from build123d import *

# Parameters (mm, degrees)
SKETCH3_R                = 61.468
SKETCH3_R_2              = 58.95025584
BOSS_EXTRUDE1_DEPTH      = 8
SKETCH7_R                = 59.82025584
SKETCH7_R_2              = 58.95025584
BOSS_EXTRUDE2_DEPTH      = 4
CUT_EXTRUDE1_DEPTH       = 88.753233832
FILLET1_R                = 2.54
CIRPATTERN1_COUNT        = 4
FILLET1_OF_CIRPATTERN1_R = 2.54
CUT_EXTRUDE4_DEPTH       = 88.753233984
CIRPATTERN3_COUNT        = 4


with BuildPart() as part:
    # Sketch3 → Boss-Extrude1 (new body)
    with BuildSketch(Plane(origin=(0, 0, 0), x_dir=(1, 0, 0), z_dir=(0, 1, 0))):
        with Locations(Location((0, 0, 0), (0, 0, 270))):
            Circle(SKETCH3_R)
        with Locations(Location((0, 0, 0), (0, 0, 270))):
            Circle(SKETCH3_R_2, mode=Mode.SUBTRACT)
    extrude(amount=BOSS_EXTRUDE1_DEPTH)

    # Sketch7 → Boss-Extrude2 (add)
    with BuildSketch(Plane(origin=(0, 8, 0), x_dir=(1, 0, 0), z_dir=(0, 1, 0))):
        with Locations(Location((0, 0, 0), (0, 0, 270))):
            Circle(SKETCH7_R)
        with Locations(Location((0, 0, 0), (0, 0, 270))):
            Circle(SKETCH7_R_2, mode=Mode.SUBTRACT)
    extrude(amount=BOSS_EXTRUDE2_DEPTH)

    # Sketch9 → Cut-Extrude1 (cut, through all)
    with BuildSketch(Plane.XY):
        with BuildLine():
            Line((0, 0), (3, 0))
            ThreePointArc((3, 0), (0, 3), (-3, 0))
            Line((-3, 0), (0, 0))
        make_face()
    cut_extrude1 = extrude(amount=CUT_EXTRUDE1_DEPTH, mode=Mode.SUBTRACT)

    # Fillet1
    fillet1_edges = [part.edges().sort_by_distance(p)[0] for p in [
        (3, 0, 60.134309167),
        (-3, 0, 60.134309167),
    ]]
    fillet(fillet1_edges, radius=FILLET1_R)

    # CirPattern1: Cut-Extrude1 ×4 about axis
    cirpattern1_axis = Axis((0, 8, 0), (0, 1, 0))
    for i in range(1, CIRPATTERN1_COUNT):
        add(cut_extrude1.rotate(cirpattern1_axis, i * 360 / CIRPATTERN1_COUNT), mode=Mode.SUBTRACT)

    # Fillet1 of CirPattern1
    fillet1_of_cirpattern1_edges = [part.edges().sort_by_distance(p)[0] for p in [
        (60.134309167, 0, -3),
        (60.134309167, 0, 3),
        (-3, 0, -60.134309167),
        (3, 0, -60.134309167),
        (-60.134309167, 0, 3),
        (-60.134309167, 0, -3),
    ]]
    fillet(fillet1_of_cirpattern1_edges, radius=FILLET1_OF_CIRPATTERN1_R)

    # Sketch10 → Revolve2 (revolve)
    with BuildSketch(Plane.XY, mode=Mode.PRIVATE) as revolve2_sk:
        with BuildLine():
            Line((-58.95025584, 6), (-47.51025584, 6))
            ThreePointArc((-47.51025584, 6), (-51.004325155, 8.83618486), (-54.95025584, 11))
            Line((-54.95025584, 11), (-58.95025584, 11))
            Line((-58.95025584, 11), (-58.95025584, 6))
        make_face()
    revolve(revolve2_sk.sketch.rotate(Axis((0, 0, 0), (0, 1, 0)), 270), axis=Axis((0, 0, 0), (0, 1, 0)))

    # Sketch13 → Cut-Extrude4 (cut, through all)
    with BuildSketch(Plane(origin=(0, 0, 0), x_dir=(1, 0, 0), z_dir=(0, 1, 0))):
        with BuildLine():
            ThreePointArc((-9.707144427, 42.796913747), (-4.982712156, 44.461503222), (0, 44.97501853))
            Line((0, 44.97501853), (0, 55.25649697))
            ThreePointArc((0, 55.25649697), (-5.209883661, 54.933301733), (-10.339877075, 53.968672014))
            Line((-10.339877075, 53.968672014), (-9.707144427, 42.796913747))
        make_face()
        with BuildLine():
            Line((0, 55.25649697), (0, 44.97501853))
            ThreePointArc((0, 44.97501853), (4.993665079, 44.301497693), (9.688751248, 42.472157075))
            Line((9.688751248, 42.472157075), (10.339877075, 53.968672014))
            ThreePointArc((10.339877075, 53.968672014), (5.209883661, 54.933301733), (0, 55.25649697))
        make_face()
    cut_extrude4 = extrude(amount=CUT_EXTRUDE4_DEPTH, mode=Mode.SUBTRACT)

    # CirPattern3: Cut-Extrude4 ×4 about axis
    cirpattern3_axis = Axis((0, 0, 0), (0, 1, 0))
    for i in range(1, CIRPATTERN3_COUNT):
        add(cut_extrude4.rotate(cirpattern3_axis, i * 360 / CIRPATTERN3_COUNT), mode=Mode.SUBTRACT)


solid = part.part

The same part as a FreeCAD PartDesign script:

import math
import FreeCAD as App
import Part
import Sketcher

V = App.Vector
Q = App.Units.Quantity


def edges_at(feature, points):
    """Names of the edges that pass closest to the given points."""
    edges = feature.Shape.Edges
    near = lambda p: min(range(len(edges)), key=lambda i: edges[i].distToShape(Part.Vertex(*p))[0])
    return sorted({f"Edge{near(p) + 1}" for p in points})

doc = App.newDocument("Part")
body = doc.addObject("PartDesign::Body", "Body")

# Sketch on XZ plane
sketch1 = body.newObject("Sketcher::SketchObject", "Sketch")
sketch1.AttachmentSupport = (doc.getObject("XZ_Plane"), [""])
sketch1.MapMode = "FlatFace"
sketch1.addGeometry(Part.Circle(V(0, 0, 0), V(0, 0, 1), 61), False)
sketch1.addGeometry(Part.Circle(V(0, 0, 0), V(0, 0, 1), 59), False)
sketch1.addConstraint(Sketcher.Constraint("Coincident", 0, 3, -1, 1))
sketch1.addConstraint(Sketcher.Constraint("Coincident", 1, 3, -1, 1))
sketch1.addConstraint(Sketcher.Constraint("Diameter", 0, Q("122.936 mm")))
sketch1.addConstraint(Sketcher.Constraint("Diameter", 1, Q("117.900512 mm")))
pad1 = body.newObject("PartDesign::Pad", "Pad")
pad1.Profile = sketch1
pad1.Length = 8
pad1.Reversed = True

# Sketch on XZ plane
sketch2 = body.newObject("Sketcher::SketchObject", "Sketch001")
sketch2.AttachmentSupport = (doc.getObject("XZ_Plane"), [""])
sketch2.MapMode = "FlatFace"
sketch2.AttachmentOffset = App.Placement(V(0, 0, -8), App.Rotation())
sketch2.addGeometry(Part.Circle(V(0, 0, 0), V(0, 0, 1), 60), False)
sketch2.addGeometry(Part.Circle(V(0, 0, 0), V(0, 0, 1), 59), False)
sketch2.addConstraint(Sketcher.Constraint("Coincident", 0, 3, -1, 1))
sketch2.addConstraint(Sketcher.Constraint("Coincident", 1, 3, -1, 1))
sketch2.addConstraint(Sketcher.Constraint("Diameter", 0, Q("119.640512 mm")))
sketch2.addConstraint(Sketcher.Constraint("Diameter", 1, Q("117.900512 mm")))
pad2 = body.newObject("PartDesign::Pad", "Pad001")
pad2.Profile = sketch2
pad2.Length = 4
pad2.Reversed = True

# Sketch on XY plane
sketch3 = body.newObject("Sketcher::SketchObject", "Sketch002")
sketch3.AttachmentSupport = (doc.getObject("XY_Plane"), [""])
sketch3.MapMode = "FlatFace"
sketch3.addGeometry(Part.ArcOfCircle(Part.Circle(V(0, 0, 0), V(0, 0, 1), 3), math.radians(0), math.radians(180)), False)
sketch3.addGeometry(Part.LineSegment(V(-3, 0, 0), V(3, 0, 0)), False)
sketch3.addConstraint(Sketcher.Constraint("Coincident", 0, 1, 1, 2))
sketch3.addConstraint(Sketcher.Constraint("Coincident", 1, 1, 0, 2))
sketch3.addConstraint(Sketcher.Constraint("Horizontal", 1))
sketch3.addConstraint(Sketcher.Constraint("Coincident", 0, 3, -1, 1))
sketch3.addConstraint(Sketcher.Constraint("PointOnObject", 0, 1, -1))
sketch3.addConstraint(Sketcher.Constraint("Radius", 0, Q("3 mm")))
pocket1 = body.newObject("PartDesign::Pocket", "Pocket")
pocket1.Profile = sketch3
pocket1.Type = "ThroughAll"
pocket1.Reversed = True
doc.recompute()

fillet = body.newObject("PartDesign::Fillet", "Fillet")
fillet.Base = (pocket1, edges_at(pocket1, [(3, 0, 60.134), (-3, 0, 60.134)]))
fillet.Radius = 2.54
doc.recompute()

polarpattern = body.newObject("PartDesign::PolarPattern", "PolarPattern")
polarpattern.Originals = [pocket1]
polarpattern.Axis = (doc.getObject("Y_Axis"), [""])
polarpattern.Angle = 360
polarpattern.Occurrences = 4
body.Tip = polarpattern
doc.recompute()

fillet2 = body.newObject("PartDesign::Fillet", "Fillet001")
fillet2.Base = (polarpattern, edges_at(polarpattern, [
    (60.134, 0, -3),
    (60.134, 0, 3),
    (-3, 0, -60.134),
    (3, 0, -60.134),
    (-60.134, 0, 3),
    (-60.134, 0, -3),
]))
fillet2.Radius = 2.54

# Sketch on XY plane
sketch4 = body.newObject("Sketcher::SketchObject", "Sketch003")
sketch4.AttachmentSupport = (doc.getObject("XY_Plane"), [""])
sketch4.MapMode = "FlatFace"
sketch4.addGeometry(Part.LineSegment(V(-59, 6, 0), V(-47.5, 6, 0)), False)
sketch4.addGeometry(Part.ArcOfCircle(Part.Circle(V(-64.9, -11.9, 0), V(0, 0, 1), 25), math.radians(46), math.radians(66)), False)
sketch4.addGeometry(Part.LineSegment(V(-55, 11, 0), V(-59, 11, 0)), False)
sketch4.addGeometry(Part.LineSegment(V(-59, 11, 0), V(-59, 6, 0)), False)
sketch4.addConstraint(Sketcher.Constraint("Coincident", 0, 2, 1, 1))
sketch4.addConstraint(Sketcher.Constraint("Coincident", 1, 2, 2, 1))
sketch4.addConstraint(Sketcher.Constraint("Coincident", 2, 2, 3, 1))
sketch4.addConstraint(Sketcher.Constraint("Coincident", 3, 2, 0, 1))
sketch4.addConstraint(Sketcher.Constraint("Horizontal", 0))
sketch4.addConstraint(Sketcher.Constraint("Horizontal", 2))
sketch4.addConstraint(Sketcher.Constraint("Vertical", 3))
sketch4.addConstraint(Sketcher.Constraint("Radius", 1, Q("25 mm")))
sketch4.addConstraint(Sketcher.Constraint("DistanceX", 2, 2, 2, 1, Q("4 mm")))
sketch4.addConstraint(Sketcher.Constraint("DistanceY", 3, 2, 3, 1, Q("5 mm")))
sketch4.addConstraint(Sketcher.Constraint("DistanceY", -1, 1, 0, 2, Q("6 mm")))
sketch4.addConstraint(Sketcher.Constraint("DistanceX", 0, 1, 0, 2, Q("11.44 mm")))
sketch4.addConstraint(Sketcher.Constraint("DistanceX", 1, 3, -1, 1, Q("64.948966 mm")))
revolution = body.newObject("PartDesign::Revolution", "Revolution")
revolution.Profile = sketch4
revolution.ReferenceAxis = (sketch4, ["V_Axis"])
revolution.Angle = 360

# Sketch on XZ plane
sketch5 = body.newObject("Sketcher::SketchObject", "Sketch004")
sketch5.AttachmentSupport = (doc.getObject("XZ_Plane"), [""])
sketch5.MapMode = "FlatFace"
sketch5.addGeometry(Part.ArcOfCircle(Part.Circle(V(0, -24, 0), V(0, 0, 1), 21), math.radians(-116), math.radians(-89)), False)
sketch5.addGeometry(Part.ArcOfCircle(Part.Circle(V(0, -24, 0), V(0, 0, 1), 21), math.radians(-89), math.radians(-62)), False)
sketch5.addGeometry(Part.LineSegment(V(10, -42, 0), V(10, -54, 0)), False)
sketch5.addGeometry(Part.ArcOfCircle(Part.Circle(V(0, -13, 0), V(0, 0, 1), 42), math.radians(-90), math.radians(-75.8)), False)
sketch5.addGeometry(Part.ArcOfCircle(Part.Circle(V(0, -13, 0), V(0, 0, 1), 42), math.radians(-104.2), math.radians(-90)), False)
sketch5.addGeometry(Part.LineSegment(V(-10, -54, 0), V(-10, -43, 0)), False)
sketch5.addConstraint(Sketcher.Constraint("Tangent", 0, 2, 1, 1))
sketch5.addConstraint(Sketcher.Constraint("Coincident", 1, 2, 2, 1))
sketch5.addConstraint(Sketcher.Constraint("Coincident", 2, 2, 3, 2))
sketch5.addConstraint(Sketcher.Constraint("Tangent", 3, 1, 4, 2))
sketch5.addConstraint(Sketcher.Constraint("Coincident", 4, 1, 5, 1))
sketch5.addConstraint(Sketcher.Constraint("Coincident", 5, 2, 0, 1))
sketch5.addConstraint(Sketcher.Constraint("Equal", 0, 1))
sketch5.addConstraint(Sketcher.Constraint("Equal", 3, 4))
sketch5.addConstraint(Sketcher.Constraint("Symmetric", 2, 2, 4, 1, -2))
sketch5.addConstraint(Sketcher.Constraint("PointOnObject", 0, 2, -2))
sketch5.addConstraint(Sketcher.Constraint("PointOnObject", 3, 1, -2))
sketch5.addConstraint(Sketcher.Constraint("Radius", 3, Q("42.15307 mm")))
sketch5.addConstraint(Sketcher.Constraint("Radius", 0, Q("21.269158 mm")))
sketch5.addConstraint(Sketcher.Constraint("Distance", 2, Q("11.514939 mm")))
sketch5.addConstraint(Sketcher.Constraint("Distance", 5, Q("11.189662 mm")))
sketch5.addConstraint(Sketcher.Constraint("DistanceX", 0, 3, -1, 1, Q("0.326088 mm")))
sketch5.addConstraint(Sketcher.Constraint("DistanceY", 0, 3, -1, 1, Q("23.708361 mm")))
sketch5.addConstraint(Sketcher.Constraint("DistanceX", -1, 1, 1, 2, Q("9.688751 mm")))
sketch5.addConstraint(Sketcher.Constraint("DistanceY", 0, 2, 3, 3, Q("31.871592 mm")))
pocket2 = body.newObject("PartDesign::Pocket", "Pocket001")
pocket2.Profile = sketch5
pocket2.Type = "ThroughAll"
doc.recompute()

polarpattern2 = body.newObject("PartDesign::PolarPattern", "PolarPattern001")
polarpattern2.Originals = [pocket2]
polarpattern2.Axis = (doc.getObject("Y_Axis"), [""])
polarpattern2.Angle = 360
polarpattern2.Occurrences = 4
body.Tip = polarpattern2

doc.recompute()
